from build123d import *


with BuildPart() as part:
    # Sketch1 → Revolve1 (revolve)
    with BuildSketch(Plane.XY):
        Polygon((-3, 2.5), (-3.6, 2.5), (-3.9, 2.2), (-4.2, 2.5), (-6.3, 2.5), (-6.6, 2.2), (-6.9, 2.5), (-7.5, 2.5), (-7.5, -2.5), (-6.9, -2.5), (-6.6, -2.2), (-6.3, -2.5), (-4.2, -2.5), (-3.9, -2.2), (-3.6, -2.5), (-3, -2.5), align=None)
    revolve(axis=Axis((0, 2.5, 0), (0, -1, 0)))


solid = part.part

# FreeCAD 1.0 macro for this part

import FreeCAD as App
import Part
import Sketcher
from FreeCAD import Vector


def add_polygon(sketch, points):
    """Adds a closed chain of lines whose ends are joined by coincident constraints."""
    first, n = sketch.GeometryCount, len(points)
    for a, b in zip(points, points[1:] + points[:1]):
        sketch.addGeometry(Part.LineSegment(App.Vector(*a, 0), App.Vector(*b, 0)), False)
    for i in range(n):
        sketch.addConstraint(Sketcher.Constraint("Coincident", first + i, 2, first + (i + 1) % n, 1))

doc = App.newDocument("Part")
body = doc.addObject("PartDesign::Body", "Body")

sketch1 = body.newObject("Sketcher::SketchObject", "Sketch")
sketch1.AttachmentSupport = (doc.getObject("XY_Plane"), [""])
sketch1.MapMode = "FlatFace"
add_polygon(sketch1, [(-3, 2.5), (-3.6, 2.5), (-3.9, 2.2), (-4.2, 2.5), (-6.3, 2.5), (-6.6, 2.2), (-6.9, 2.5), (-7.5, 2.5), (-7.5, -2.5), (-6.9, -2.5), (-6.6, -2.2), (-6.3, -2.5), (-4.2, -2.5), (-3.9, -2.2), (-3.6, -2.5), (-3, -2.5)])
sketch1.addConstraint(Sketcher.Constraint("Horizontal", 0))
sketch1.addConstraint(Sketcher.Constraint("Horizontal", 3))
sketch1.addConstraint(Sketcher.Constraint("Horizontal", 6))
sketch1.addConstraint(Sketcher.Constraint("Vertical", 7))
sketch1.addConstraint(Sketcher.Constraint("Horizontal", 8))
sketch1.addConstraint(Sketcher.Constraint("Horizontal", 11))
sketch1.addConstraint(Sketcher.Constraint("Horizontal", 14))
sketch1.addConstraint(Sketcher.Constraint("Vertical", 15))
sketch1.addConstraint(Sketcher.Constraint("Symmetric", 5, 2, 8, 2, -1))
sketch1.addConstraint(Sketcher.Constraint("Symmetric", 4, 2, 9, 2, -1))
sketch1.addConstraint(Sketcher.Constraint("Symmetric", 3, 2, 10, 2, -1))
sketch1.addConstraint(Sketcher.Constraint("Symmetric", 1, 2, 12, 2, -1))
sketch1.addConstraint(Sketcher.Constraint("Symmetric", 0, 2, 13, 2, -1))
sketch1.addConstraint(Sketcher.Constraint("Perpendicular", 1, 2))
sketch1.addConstraint(Sketcher.Constraint("Perpendicular", 2, 4))
sketch1.addConstraint(Sketcher.Constraint("Perpendicular", 4, 5))
sketch1.addConstraint(Sketcher.Constraint("Perpendicular", 5, 9))
sketch1.addConstraint(Sketcher.Constraint("Perpendicular", 10, 12))
sketch1.addConstraint(Sketcher.Constraint("Horizontal", 0, 2, 2, 2))
sketch1.addConstraint(Sketcher.Constraint("Horizontal", 1, 2, 4, 2))
sketch1.addConstraint(Sketcher.Constraint("Horizontal", 3, 2, 5, 2))
sketch1.addConstraint(Sketcher.Constraint("Equal", 0, 6))
sketch1.addConstraint(Sketcher.Constraint("DistanceY", 7, 2, 7, 1, 5.0))
sketch1.addConstraint(Sketcher.Constraint("DistanceX", 0, 2, 0, 1, 0.6))
sketch1.addConstraint(Sketcher.Constraint("DistanceX", 3, 2, 3, 1, 2.1))
sketch1.addConstraint(Sketcher.Constraint("DistanceX", 14, 2, -1, 1, 3.0))
sketch1.addConstraint(Sketcher.Constraint("DistanceX", 4, 2, 0, 2, 3.0))
revolution = body.newObject("PartDesign::Revolution", "Revolution")
revolution.Profile = sketch1
revolution.ReferenceAxis = (sketch1, ["V_Axis"])
revolution.Angle = 360

doc.recompute()
